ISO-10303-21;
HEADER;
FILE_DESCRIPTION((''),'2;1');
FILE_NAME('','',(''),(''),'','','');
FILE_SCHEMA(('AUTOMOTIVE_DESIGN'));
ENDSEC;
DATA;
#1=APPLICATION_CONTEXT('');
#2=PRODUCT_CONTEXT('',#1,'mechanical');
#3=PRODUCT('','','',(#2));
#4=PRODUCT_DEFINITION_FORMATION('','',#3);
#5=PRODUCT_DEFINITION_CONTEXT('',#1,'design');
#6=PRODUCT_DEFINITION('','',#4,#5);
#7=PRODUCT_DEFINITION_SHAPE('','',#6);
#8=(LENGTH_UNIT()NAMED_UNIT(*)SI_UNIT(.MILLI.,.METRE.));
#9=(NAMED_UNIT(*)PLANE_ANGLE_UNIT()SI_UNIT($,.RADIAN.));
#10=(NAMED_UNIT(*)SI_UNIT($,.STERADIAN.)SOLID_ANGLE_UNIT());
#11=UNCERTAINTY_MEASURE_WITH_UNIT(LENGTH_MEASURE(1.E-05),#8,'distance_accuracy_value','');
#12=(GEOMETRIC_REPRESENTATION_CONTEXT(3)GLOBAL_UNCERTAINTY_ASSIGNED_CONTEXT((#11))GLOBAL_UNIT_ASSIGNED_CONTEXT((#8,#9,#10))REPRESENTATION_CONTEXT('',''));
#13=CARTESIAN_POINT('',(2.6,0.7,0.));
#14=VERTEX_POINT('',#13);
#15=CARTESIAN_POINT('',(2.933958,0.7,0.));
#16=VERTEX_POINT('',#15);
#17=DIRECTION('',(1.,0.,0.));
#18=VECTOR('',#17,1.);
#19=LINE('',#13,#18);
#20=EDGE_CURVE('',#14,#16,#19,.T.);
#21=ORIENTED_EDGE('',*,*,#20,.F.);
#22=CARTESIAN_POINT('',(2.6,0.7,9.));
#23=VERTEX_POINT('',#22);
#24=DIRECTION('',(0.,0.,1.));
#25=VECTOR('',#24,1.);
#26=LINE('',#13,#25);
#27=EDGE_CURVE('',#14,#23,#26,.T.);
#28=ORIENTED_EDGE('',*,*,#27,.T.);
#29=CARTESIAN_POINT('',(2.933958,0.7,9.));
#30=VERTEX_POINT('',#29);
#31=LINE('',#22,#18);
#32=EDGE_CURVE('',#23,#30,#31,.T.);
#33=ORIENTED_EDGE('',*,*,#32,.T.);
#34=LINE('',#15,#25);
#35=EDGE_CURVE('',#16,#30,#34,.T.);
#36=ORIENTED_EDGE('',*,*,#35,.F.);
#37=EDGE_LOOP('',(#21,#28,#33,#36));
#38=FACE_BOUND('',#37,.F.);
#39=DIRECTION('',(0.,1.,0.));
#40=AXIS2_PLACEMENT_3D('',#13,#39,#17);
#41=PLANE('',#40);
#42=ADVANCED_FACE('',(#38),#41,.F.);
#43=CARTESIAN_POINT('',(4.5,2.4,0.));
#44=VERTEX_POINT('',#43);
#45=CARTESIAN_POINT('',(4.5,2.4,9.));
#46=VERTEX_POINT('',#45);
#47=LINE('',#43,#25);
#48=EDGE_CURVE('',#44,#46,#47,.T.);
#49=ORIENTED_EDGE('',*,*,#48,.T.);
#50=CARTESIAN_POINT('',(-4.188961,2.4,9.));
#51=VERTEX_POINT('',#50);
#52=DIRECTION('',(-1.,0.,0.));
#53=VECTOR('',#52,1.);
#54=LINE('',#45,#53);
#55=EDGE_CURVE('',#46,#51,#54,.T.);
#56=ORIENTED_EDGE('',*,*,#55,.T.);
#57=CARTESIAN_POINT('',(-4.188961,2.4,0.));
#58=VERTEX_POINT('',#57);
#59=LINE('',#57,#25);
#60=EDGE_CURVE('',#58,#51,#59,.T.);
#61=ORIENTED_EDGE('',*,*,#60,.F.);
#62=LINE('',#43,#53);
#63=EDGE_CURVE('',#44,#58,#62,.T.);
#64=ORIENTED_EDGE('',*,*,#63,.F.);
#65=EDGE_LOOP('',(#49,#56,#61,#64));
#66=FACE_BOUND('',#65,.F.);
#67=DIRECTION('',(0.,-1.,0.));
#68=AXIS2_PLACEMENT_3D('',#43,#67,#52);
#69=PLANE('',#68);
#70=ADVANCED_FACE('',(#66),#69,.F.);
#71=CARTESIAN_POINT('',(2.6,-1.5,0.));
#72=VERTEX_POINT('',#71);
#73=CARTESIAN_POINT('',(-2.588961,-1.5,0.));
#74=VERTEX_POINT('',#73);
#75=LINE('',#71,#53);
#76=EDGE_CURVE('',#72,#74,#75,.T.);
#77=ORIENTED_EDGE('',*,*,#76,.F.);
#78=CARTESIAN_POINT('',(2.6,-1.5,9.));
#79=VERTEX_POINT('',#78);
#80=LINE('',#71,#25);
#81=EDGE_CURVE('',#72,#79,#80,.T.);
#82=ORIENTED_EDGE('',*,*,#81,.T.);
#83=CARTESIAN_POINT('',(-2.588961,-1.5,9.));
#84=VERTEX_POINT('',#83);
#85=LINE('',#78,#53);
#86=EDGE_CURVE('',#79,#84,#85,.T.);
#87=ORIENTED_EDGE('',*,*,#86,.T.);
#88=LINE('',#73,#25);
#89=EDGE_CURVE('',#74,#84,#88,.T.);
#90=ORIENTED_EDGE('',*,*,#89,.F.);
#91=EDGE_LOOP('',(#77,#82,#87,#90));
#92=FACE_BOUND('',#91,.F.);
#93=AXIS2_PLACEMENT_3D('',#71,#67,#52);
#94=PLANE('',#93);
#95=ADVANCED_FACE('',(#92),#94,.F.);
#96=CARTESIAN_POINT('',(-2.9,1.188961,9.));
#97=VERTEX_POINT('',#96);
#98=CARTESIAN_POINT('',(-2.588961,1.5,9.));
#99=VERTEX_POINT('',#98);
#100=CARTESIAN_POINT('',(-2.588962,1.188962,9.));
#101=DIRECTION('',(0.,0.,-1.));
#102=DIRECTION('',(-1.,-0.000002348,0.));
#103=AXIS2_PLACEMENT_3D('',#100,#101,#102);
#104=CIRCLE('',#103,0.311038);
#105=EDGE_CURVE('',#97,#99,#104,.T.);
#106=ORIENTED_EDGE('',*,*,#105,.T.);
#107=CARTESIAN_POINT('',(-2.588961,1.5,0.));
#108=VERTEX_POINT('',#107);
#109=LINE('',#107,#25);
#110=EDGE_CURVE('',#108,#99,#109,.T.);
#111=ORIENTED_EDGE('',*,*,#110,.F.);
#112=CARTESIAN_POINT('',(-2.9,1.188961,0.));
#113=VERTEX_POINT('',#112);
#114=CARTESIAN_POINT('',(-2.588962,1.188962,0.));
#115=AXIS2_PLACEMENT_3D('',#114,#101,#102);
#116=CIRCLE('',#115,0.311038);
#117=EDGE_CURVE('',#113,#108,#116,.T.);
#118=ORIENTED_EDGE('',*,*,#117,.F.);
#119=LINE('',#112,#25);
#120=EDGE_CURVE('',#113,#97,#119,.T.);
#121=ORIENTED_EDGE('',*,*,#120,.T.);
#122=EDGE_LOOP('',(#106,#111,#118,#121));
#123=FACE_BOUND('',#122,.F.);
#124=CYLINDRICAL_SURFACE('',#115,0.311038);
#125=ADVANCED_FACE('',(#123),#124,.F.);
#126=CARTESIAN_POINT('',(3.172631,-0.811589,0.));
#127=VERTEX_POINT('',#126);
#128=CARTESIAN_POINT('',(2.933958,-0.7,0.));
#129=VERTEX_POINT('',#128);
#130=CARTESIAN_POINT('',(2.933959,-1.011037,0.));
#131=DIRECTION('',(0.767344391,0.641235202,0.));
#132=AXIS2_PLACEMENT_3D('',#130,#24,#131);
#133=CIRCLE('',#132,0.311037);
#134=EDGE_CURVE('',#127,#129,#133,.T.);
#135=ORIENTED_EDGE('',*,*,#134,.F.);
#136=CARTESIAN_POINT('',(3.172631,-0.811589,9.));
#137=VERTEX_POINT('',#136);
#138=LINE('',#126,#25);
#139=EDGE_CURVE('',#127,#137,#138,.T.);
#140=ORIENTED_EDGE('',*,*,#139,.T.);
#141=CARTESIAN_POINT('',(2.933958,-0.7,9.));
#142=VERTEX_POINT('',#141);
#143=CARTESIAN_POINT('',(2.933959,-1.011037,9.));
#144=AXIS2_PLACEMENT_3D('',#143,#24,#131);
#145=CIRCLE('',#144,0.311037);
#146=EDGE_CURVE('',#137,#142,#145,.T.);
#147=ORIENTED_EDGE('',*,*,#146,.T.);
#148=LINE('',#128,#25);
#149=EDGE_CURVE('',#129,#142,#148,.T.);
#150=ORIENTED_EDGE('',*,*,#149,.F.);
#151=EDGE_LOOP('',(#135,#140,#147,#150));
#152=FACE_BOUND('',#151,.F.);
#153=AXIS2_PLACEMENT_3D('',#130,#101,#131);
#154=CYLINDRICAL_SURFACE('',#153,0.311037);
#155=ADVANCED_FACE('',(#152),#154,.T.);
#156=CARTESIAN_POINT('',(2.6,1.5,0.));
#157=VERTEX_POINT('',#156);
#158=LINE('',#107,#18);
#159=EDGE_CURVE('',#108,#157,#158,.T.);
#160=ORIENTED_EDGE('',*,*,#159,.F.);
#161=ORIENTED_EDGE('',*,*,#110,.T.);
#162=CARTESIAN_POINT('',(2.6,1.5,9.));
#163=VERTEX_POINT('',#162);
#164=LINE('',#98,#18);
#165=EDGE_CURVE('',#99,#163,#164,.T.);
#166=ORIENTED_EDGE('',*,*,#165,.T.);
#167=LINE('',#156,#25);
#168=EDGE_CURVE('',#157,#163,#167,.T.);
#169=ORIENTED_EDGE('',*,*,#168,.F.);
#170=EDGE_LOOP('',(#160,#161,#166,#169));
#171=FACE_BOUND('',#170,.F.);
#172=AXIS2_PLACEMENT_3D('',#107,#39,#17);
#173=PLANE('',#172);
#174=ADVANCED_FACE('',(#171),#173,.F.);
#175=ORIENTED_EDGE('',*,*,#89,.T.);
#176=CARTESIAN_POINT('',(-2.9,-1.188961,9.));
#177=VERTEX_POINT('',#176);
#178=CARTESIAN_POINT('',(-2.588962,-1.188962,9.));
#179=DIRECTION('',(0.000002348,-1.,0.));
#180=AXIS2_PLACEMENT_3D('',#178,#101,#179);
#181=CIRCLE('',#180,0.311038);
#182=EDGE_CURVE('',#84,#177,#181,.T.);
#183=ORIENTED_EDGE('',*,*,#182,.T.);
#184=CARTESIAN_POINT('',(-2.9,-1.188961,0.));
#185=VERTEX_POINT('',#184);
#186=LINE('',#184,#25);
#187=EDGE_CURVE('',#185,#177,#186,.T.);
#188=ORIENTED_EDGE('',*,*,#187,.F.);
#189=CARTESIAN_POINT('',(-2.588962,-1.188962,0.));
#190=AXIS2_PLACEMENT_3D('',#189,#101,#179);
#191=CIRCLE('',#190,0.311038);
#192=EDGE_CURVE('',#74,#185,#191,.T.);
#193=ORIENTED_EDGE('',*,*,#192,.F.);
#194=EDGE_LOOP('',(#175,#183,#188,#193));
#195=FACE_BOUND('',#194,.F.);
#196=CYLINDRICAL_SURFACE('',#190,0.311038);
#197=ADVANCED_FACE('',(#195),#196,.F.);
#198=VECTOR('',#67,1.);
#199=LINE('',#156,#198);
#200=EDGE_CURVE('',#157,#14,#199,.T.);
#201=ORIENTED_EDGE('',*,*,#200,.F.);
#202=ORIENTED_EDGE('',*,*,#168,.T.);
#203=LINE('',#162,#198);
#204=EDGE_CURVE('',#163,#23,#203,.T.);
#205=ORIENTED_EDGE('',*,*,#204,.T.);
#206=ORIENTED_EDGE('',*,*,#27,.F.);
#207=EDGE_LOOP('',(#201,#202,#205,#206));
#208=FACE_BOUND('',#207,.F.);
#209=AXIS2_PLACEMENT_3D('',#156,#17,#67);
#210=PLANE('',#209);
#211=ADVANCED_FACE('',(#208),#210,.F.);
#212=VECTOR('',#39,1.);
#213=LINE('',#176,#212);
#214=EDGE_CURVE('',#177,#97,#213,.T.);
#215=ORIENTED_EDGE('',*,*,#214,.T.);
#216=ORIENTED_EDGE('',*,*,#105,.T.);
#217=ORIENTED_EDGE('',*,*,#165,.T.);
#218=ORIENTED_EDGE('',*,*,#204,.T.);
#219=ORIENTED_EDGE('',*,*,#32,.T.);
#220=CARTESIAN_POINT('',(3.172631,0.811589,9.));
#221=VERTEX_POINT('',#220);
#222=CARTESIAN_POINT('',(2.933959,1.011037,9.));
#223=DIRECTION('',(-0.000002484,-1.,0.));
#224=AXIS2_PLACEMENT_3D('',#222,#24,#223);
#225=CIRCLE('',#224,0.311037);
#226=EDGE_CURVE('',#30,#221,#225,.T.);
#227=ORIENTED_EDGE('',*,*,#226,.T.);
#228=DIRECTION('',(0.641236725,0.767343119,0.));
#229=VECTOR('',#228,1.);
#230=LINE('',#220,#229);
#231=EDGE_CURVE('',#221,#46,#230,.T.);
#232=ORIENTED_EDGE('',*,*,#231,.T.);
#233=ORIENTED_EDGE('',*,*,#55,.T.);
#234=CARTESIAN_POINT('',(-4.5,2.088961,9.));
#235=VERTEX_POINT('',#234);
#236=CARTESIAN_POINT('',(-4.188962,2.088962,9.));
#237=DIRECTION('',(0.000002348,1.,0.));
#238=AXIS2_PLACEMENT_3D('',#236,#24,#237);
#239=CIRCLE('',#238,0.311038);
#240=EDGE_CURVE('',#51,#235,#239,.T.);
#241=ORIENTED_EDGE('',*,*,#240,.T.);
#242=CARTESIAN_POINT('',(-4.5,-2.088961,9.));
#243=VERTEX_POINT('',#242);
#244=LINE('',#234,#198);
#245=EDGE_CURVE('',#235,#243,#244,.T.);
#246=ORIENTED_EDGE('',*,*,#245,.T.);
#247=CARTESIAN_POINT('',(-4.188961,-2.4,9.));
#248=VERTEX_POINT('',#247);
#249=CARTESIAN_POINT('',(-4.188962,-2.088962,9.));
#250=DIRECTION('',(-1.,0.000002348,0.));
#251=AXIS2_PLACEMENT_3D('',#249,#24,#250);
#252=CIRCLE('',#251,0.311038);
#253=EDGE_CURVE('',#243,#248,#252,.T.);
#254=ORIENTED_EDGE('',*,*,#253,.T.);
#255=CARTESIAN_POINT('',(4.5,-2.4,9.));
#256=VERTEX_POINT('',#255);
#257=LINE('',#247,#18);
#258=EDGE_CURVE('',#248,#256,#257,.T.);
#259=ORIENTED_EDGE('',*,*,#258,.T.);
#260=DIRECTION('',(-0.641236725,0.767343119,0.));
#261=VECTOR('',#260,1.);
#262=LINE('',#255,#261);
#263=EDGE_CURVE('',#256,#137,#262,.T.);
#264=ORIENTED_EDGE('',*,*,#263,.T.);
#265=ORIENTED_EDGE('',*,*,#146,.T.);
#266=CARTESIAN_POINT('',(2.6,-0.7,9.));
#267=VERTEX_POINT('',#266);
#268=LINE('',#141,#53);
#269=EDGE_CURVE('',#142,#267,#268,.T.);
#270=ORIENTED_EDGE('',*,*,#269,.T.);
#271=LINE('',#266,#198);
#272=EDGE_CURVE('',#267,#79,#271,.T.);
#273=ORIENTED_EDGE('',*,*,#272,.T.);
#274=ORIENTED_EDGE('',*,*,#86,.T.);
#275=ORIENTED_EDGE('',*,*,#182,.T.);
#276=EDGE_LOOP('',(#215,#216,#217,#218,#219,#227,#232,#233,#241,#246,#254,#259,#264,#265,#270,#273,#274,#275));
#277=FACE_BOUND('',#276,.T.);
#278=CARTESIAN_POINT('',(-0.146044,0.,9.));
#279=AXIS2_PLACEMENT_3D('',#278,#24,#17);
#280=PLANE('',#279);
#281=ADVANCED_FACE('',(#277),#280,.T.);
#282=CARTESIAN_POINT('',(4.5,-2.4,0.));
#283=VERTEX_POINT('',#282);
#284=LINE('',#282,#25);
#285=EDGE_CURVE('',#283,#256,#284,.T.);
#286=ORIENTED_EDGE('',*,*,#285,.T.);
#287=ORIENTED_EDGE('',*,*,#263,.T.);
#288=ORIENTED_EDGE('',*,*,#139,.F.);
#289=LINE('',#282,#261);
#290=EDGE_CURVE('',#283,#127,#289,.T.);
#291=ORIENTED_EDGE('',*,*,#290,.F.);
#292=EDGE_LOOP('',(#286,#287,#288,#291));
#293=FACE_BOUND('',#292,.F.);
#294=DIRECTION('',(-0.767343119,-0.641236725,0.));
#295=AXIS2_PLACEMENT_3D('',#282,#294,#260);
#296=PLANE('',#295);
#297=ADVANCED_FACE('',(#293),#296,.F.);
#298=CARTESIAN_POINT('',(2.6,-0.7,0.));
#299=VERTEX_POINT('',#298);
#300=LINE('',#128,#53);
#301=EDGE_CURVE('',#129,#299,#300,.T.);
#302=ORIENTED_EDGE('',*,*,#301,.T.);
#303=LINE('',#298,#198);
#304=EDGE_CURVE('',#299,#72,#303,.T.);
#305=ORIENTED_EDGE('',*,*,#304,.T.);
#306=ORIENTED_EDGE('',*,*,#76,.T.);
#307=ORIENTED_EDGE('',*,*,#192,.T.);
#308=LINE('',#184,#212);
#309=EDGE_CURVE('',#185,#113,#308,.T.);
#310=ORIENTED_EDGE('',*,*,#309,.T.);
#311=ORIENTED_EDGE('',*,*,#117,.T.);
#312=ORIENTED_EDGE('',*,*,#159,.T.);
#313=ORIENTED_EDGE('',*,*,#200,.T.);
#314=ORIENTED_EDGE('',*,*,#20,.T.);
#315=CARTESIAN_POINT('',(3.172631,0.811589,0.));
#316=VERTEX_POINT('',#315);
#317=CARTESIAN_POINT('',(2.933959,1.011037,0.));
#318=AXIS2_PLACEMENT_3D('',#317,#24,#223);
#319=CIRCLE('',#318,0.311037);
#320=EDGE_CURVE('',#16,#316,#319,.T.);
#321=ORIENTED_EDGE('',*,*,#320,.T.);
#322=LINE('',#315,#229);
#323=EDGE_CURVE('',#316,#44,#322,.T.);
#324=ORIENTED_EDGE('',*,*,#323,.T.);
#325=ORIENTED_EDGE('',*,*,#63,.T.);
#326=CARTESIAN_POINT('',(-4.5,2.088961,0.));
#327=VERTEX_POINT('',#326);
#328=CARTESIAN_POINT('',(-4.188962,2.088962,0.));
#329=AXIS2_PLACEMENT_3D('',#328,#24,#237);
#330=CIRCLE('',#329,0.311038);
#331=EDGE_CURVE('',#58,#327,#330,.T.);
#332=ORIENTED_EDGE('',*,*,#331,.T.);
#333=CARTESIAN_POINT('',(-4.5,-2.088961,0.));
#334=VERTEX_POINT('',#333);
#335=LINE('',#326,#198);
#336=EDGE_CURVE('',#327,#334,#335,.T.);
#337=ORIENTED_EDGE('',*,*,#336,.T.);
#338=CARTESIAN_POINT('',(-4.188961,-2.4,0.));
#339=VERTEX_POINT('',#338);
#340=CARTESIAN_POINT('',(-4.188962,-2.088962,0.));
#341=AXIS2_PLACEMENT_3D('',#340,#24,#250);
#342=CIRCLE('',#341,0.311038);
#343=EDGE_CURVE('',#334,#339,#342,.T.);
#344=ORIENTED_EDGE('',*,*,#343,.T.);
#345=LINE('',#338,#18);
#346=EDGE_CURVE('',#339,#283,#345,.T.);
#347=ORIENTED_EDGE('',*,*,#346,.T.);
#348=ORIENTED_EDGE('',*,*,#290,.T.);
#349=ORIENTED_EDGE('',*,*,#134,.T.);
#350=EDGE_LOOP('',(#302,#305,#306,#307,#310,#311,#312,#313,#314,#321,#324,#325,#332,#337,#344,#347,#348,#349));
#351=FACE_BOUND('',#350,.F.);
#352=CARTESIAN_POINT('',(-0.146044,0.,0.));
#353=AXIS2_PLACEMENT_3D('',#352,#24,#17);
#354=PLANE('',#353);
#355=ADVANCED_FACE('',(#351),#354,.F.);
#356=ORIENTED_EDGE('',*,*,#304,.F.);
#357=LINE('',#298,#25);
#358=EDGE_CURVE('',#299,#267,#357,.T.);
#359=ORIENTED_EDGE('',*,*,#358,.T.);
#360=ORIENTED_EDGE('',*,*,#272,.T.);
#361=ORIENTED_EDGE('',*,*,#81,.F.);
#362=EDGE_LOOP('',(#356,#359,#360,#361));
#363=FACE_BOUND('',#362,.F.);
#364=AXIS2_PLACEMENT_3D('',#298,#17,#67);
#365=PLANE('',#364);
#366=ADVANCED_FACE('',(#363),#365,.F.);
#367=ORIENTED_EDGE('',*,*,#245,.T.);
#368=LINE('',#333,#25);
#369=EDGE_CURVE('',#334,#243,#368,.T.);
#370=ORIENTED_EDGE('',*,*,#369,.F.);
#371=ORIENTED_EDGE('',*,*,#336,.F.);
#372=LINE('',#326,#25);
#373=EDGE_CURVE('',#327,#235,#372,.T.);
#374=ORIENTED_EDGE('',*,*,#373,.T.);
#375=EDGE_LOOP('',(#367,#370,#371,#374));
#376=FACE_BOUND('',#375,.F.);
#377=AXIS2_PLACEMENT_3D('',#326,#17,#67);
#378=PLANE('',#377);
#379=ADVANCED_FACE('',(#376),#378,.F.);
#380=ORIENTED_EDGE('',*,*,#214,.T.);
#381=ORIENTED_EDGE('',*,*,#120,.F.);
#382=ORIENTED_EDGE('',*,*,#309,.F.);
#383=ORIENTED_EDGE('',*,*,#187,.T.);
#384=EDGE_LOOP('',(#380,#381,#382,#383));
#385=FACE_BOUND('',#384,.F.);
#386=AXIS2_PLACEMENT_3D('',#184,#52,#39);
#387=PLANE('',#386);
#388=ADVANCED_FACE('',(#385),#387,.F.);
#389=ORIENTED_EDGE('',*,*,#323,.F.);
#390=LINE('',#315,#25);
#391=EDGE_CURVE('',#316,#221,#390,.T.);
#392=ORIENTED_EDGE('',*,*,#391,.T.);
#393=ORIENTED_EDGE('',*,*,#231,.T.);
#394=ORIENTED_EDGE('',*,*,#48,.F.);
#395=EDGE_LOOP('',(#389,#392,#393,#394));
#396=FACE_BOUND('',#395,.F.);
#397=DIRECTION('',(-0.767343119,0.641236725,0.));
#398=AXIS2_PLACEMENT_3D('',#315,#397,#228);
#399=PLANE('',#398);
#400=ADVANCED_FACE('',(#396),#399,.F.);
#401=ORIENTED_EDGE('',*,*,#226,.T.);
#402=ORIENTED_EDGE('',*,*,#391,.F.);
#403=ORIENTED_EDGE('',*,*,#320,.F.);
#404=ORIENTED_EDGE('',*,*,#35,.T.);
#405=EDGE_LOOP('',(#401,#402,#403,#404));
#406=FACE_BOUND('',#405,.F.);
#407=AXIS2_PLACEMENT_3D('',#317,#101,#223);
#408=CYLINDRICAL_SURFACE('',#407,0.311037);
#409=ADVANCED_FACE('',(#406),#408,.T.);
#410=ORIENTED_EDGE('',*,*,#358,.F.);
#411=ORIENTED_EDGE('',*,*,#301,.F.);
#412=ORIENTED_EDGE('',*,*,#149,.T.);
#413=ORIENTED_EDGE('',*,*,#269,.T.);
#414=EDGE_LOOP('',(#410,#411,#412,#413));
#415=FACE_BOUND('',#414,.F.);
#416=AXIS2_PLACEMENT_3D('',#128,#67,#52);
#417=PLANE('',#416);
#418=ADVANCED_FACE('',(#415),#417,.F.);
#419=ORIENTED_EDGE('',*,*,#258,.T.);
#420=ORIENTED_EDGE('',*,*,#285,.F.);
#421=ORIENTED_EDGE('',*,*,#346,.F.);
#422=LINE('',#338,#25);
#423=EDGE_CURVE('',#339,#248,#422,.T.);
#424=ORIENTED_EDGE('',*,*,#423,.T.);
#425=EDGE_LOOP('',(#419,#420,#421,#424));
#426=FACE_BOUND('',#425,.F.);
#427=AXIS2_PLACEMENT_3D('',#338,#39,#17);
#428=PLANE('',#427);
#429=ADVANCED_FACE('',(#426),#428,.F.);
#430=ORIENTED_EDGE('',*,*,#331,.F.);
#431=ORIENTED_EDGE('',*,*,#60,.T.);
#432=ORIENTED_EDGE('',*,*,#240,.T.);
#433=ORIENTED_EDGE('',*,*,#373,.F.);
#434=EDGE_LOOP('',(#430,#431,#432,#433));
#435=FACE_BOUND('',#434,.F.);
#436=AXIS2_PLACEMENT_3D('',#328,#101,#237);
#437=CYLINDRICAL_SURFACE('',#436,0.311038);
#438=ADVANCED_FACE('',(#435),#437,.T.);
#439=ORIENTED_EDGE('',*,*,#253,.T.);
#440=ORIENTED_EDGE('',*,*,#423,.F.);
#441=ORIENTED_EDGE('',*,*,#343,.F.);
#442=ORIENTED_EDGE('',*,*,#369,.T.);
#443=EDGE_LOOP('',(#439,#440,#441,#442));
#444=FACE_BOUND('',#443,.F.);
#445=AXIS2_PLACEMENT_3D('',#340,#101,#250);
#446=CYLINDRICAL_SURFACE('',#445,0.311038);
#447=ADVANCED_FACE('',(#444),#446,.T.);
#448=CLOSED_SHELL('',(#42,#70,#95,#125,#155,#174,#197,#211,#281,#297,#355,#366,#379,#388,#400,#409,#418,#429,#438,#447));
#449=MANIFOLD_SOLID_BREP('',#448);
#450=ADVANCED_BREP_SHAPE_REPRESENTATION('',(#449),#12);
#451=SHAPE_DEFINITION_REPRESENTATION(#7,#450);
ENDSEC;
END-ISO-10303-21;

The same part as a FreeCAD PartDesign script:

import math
import FreeCAD as App
import Part
import Sketcher
Q = App.Units.Quantity

doc = App.newDocument("Part")
body = doc.addObject("PartDesign::Body", "Body")

sketch1 = body.newObject("Sketcher::SketchObject", "Sketch")
sketch1.AttachmentSupport = (doc.getObject("XY_Plane"), [""])
sketch1.MapMode = "FlatFace"
sketch1.addGeometry([
    Part.LineSegment(App.Vector(-4.188961, -2.4, 0), App.Vector(4.5, -2.4, 0)),
    Part.LineSegment(App.Vector(4.5, -2.4, 0), App.Vector(3.172631, -0.811589, 0)),
    Part.ArcOfCircle(Part.Circle(App.Vector(2.933959, -1.011037, 0), App.Vector(0, 0, 1), 0.311037), math.radians(39.883987), math.radians(90.000142)),
    Part.LineSegment(App.Vector(2.933958, -0.7, 0), App.Vector(2.6, -0.7, 0)),
    Part.LineSegment(App.Vector(2.6, -0.7, 0), App.Vector(2.6, -1.5, 0)),
    Part.LineSegment(App.Vector(2.6, -1.5, 0), App.Vector(-2.588961, -1.5, 0)),
    Part.ArcOfCircle(Part.Circle(App.Vector(-2.588962, -1.188962, 0), App.Vector(0, 0, 1), 0.311038), math.radians(179.999866), math.radians(270.000134)),
    Part.LineSegment(App.Vector(-2.9, -1.188961, 0), App.Vector(-2.9, 1.188961, 0)),
    Part.ArcOfCircle(Part.Circle(App.Vector(-2.588962, 1.188962, 0), App.Vector(0, 0, 1), 0.311038), math.radians(89.999866), math.radians(180.000134)),
    Part.LineSegment(App.Vector(-2.588961, 1.5, 0), App.Vector(2.6, 1.5, 0)),
    Part.LineSegment(App.Vector(2.6, 1.5, 0), App.Vector(2.6, 0.7, 0)),
    Part.LineSegment(App.Vector(2.6, 0.7, 0), App.Vector(2.933958, 0.7, 0)),
    Part.ArcOfCircle(Part.Circle(App.Vector(2.933959, 1.011037, 0), App.Vector(0, 0, 1), 0.311037), math.radians(-90.000142), math.radians(-39.883987)),
    Part.LineSegment(App.Vector(3.172631, 0.811589, 0), App.Vector(4.5, 2.4, 0)),
    Part.LineSegment(App.Vector(4.5, 2.4, 0), App.Vector(-4.188961, 2.4, 0)),
    Part.ArcOfCircle(Part.Circle(App.Vector(-4.188962, 2.088962, 0), App.Vector(0, 0, 1), 0.311038), math.radians(89.999866), math.radians(180.000134)),
    Part.LineSegment(App.Vector(-4.5, 2.088961, 0), App.Vector(-4.5, -2.088961, 0)),
    Part.ArcOfCircle(Part.Circle(App.Vector(-4.188962, -2.088962, 0), App.Vector(0, 0, 1), 0.311038), math.radians(179.999866), math.radians(270.000134)),
], False)
sketch1.addConstraint([
    Sketcher.Constraint("Coincident", 0, 2, 1, 1),
    Sketcher.Constraint("Tangent", 1, 2, 2, 1),
    Sketcher.Constraint("Coincident", 2, 2, 3, 1),
    Sketcher.Constraint("Coincident", 3, 2, 4, 1),
    Sketcher.Constraint("Coincident", 4, 2, 5, 1),
    Sketcher.Constraint("Coincident", 5, 2, 6, 2),
    Sketcher.Constraint("Coincident", 6, 1, 7, 1),
    Sketcher.Constraint("Coincident", 7, 2, 8, 2),
    Sketcher.Constraint("Coincident", 8, 1, 9, 1),
    Sketcher.Constraint("Coincident", 9, 2, 10, 1),
    Sketcher.Constraint("Coincident", 10, 2, 11, 1),
    Sketcher.Constraint("Coincident", 11, 2, 12, 1),
    Sketcher.Constraint("Tangent", 12, 2, 13, 1),
    Sketcher.Constraint("Coincident", 13, 2, 14, 1),
    Sketcher.Constraint("Coincident", 14, 2, 15, 1),
    Sketcher.Constraint("Coincident", 15, 2, 16, 1),
    Sketcher.Constraint("Coincident", 16, 2, 17, 1),
    Sketcher.Constraint("Coincident", 17, 2, 0, 1),
    Sketcher.Constraint("Horizontal", 0),
    Sketcher.Constraint("Horizontal", 3),
    Sketcher.Constraint("Vertical", 4),
    Sketcher.Constraint("Horizontal", 5),
    Sketcher.Constraint("Vertical", 7),
    Sketcher.Constraint("Horizontal", 9),
    Sketcher.Constraint("Vertical", 10),
    Sketcher.Constraint("Horizontal", 11),
    Sketcher.Constraint("Horizontal", 14),
    Sketcher.Constraint("Vertical", 16),
    Sketcher.Constraint("Equal", 2, 6),
    Sketcher.Constraint("Equal", 6, 8),
    Sketcher.Constraint("Equal", 8, 12),
    Sketcher.Constraint("Equal", 12, 15),
    Sketcher.Constraint("Equal", 15, 17),
    Sketcher.Constraint("Symmetric", 2, 3, 12, 3, -1),
    Sketcher.Constraint("Symmetric", 5, 2, 8, 1, -1),
    Sketcher.Constraint("Symmetric", 0, 2, 13, 2, -1),
    Sketcher.Constraint("Horizontal", 8, 3, 7, 2),
    Sketcher.Constraint("Horizontal", 17, 3, 16, 2),
    Sketcher.Constraint("Vertical", 12, 3, 2, 2),
    Sketcher.Constraint("Vertical", 8, 3, 5, 2),
    Sketcher.Constraint("Vertical", 4, 2, 9, 2),
    Sketcher.Constraint("Vertical", 2, 2, 11, 2),
    Sketcher.Constraint("Vertical", 17, 3, 14, 2),
    Sketcher.Constraint("Vertical", 14, 2, 17, 2),
    Sketcher.Constraint("DistanceY", 4, 2, 4, 1, Q("0.8 mm")),
    Sketcher.Constraint("DistanceX", -1, 1, 0, 2, Q("4.5 mm")),
    Sketcher.Constraint("DistanceY", 0, 2, -1, 1, Q("2.4 mm")),
    Sketcher.Constraint("DistanceY", 2, 2, -1, 1, Q("0.7 mm")),
    Sketcher.Constraint("DistanceX", -1, 1, 3, 2, Q("2.6 mm")),
    Sketcher.Constraint("DistanceX", 6, 1, -1, 1, Q("2.9 mm")),
    Sketcher.Constraint("DistanceX", 15, 2, -1, 1, Q("4.5 mm")),
    Sketcher.Constraint("DistanceY", 17, 3, 6, 1, Q("0.900001 mm")),
    Sketcher.Constraint("DistanceY", 7, 2, 15, 2, Q("0.9 mm")),
    Sketcher.Constraint("Radius", 6, Q("0.311038 mm")),
    Sketcher.Constraint("DistanceX", 3, 2, 3, 1, Q("0.333958 mm")),
])
pad1 = body.newObject("PartDesign::Pad", "Pad")
pad1.Profile = sketch1
pad1.Length = 9

doc.recompute()
